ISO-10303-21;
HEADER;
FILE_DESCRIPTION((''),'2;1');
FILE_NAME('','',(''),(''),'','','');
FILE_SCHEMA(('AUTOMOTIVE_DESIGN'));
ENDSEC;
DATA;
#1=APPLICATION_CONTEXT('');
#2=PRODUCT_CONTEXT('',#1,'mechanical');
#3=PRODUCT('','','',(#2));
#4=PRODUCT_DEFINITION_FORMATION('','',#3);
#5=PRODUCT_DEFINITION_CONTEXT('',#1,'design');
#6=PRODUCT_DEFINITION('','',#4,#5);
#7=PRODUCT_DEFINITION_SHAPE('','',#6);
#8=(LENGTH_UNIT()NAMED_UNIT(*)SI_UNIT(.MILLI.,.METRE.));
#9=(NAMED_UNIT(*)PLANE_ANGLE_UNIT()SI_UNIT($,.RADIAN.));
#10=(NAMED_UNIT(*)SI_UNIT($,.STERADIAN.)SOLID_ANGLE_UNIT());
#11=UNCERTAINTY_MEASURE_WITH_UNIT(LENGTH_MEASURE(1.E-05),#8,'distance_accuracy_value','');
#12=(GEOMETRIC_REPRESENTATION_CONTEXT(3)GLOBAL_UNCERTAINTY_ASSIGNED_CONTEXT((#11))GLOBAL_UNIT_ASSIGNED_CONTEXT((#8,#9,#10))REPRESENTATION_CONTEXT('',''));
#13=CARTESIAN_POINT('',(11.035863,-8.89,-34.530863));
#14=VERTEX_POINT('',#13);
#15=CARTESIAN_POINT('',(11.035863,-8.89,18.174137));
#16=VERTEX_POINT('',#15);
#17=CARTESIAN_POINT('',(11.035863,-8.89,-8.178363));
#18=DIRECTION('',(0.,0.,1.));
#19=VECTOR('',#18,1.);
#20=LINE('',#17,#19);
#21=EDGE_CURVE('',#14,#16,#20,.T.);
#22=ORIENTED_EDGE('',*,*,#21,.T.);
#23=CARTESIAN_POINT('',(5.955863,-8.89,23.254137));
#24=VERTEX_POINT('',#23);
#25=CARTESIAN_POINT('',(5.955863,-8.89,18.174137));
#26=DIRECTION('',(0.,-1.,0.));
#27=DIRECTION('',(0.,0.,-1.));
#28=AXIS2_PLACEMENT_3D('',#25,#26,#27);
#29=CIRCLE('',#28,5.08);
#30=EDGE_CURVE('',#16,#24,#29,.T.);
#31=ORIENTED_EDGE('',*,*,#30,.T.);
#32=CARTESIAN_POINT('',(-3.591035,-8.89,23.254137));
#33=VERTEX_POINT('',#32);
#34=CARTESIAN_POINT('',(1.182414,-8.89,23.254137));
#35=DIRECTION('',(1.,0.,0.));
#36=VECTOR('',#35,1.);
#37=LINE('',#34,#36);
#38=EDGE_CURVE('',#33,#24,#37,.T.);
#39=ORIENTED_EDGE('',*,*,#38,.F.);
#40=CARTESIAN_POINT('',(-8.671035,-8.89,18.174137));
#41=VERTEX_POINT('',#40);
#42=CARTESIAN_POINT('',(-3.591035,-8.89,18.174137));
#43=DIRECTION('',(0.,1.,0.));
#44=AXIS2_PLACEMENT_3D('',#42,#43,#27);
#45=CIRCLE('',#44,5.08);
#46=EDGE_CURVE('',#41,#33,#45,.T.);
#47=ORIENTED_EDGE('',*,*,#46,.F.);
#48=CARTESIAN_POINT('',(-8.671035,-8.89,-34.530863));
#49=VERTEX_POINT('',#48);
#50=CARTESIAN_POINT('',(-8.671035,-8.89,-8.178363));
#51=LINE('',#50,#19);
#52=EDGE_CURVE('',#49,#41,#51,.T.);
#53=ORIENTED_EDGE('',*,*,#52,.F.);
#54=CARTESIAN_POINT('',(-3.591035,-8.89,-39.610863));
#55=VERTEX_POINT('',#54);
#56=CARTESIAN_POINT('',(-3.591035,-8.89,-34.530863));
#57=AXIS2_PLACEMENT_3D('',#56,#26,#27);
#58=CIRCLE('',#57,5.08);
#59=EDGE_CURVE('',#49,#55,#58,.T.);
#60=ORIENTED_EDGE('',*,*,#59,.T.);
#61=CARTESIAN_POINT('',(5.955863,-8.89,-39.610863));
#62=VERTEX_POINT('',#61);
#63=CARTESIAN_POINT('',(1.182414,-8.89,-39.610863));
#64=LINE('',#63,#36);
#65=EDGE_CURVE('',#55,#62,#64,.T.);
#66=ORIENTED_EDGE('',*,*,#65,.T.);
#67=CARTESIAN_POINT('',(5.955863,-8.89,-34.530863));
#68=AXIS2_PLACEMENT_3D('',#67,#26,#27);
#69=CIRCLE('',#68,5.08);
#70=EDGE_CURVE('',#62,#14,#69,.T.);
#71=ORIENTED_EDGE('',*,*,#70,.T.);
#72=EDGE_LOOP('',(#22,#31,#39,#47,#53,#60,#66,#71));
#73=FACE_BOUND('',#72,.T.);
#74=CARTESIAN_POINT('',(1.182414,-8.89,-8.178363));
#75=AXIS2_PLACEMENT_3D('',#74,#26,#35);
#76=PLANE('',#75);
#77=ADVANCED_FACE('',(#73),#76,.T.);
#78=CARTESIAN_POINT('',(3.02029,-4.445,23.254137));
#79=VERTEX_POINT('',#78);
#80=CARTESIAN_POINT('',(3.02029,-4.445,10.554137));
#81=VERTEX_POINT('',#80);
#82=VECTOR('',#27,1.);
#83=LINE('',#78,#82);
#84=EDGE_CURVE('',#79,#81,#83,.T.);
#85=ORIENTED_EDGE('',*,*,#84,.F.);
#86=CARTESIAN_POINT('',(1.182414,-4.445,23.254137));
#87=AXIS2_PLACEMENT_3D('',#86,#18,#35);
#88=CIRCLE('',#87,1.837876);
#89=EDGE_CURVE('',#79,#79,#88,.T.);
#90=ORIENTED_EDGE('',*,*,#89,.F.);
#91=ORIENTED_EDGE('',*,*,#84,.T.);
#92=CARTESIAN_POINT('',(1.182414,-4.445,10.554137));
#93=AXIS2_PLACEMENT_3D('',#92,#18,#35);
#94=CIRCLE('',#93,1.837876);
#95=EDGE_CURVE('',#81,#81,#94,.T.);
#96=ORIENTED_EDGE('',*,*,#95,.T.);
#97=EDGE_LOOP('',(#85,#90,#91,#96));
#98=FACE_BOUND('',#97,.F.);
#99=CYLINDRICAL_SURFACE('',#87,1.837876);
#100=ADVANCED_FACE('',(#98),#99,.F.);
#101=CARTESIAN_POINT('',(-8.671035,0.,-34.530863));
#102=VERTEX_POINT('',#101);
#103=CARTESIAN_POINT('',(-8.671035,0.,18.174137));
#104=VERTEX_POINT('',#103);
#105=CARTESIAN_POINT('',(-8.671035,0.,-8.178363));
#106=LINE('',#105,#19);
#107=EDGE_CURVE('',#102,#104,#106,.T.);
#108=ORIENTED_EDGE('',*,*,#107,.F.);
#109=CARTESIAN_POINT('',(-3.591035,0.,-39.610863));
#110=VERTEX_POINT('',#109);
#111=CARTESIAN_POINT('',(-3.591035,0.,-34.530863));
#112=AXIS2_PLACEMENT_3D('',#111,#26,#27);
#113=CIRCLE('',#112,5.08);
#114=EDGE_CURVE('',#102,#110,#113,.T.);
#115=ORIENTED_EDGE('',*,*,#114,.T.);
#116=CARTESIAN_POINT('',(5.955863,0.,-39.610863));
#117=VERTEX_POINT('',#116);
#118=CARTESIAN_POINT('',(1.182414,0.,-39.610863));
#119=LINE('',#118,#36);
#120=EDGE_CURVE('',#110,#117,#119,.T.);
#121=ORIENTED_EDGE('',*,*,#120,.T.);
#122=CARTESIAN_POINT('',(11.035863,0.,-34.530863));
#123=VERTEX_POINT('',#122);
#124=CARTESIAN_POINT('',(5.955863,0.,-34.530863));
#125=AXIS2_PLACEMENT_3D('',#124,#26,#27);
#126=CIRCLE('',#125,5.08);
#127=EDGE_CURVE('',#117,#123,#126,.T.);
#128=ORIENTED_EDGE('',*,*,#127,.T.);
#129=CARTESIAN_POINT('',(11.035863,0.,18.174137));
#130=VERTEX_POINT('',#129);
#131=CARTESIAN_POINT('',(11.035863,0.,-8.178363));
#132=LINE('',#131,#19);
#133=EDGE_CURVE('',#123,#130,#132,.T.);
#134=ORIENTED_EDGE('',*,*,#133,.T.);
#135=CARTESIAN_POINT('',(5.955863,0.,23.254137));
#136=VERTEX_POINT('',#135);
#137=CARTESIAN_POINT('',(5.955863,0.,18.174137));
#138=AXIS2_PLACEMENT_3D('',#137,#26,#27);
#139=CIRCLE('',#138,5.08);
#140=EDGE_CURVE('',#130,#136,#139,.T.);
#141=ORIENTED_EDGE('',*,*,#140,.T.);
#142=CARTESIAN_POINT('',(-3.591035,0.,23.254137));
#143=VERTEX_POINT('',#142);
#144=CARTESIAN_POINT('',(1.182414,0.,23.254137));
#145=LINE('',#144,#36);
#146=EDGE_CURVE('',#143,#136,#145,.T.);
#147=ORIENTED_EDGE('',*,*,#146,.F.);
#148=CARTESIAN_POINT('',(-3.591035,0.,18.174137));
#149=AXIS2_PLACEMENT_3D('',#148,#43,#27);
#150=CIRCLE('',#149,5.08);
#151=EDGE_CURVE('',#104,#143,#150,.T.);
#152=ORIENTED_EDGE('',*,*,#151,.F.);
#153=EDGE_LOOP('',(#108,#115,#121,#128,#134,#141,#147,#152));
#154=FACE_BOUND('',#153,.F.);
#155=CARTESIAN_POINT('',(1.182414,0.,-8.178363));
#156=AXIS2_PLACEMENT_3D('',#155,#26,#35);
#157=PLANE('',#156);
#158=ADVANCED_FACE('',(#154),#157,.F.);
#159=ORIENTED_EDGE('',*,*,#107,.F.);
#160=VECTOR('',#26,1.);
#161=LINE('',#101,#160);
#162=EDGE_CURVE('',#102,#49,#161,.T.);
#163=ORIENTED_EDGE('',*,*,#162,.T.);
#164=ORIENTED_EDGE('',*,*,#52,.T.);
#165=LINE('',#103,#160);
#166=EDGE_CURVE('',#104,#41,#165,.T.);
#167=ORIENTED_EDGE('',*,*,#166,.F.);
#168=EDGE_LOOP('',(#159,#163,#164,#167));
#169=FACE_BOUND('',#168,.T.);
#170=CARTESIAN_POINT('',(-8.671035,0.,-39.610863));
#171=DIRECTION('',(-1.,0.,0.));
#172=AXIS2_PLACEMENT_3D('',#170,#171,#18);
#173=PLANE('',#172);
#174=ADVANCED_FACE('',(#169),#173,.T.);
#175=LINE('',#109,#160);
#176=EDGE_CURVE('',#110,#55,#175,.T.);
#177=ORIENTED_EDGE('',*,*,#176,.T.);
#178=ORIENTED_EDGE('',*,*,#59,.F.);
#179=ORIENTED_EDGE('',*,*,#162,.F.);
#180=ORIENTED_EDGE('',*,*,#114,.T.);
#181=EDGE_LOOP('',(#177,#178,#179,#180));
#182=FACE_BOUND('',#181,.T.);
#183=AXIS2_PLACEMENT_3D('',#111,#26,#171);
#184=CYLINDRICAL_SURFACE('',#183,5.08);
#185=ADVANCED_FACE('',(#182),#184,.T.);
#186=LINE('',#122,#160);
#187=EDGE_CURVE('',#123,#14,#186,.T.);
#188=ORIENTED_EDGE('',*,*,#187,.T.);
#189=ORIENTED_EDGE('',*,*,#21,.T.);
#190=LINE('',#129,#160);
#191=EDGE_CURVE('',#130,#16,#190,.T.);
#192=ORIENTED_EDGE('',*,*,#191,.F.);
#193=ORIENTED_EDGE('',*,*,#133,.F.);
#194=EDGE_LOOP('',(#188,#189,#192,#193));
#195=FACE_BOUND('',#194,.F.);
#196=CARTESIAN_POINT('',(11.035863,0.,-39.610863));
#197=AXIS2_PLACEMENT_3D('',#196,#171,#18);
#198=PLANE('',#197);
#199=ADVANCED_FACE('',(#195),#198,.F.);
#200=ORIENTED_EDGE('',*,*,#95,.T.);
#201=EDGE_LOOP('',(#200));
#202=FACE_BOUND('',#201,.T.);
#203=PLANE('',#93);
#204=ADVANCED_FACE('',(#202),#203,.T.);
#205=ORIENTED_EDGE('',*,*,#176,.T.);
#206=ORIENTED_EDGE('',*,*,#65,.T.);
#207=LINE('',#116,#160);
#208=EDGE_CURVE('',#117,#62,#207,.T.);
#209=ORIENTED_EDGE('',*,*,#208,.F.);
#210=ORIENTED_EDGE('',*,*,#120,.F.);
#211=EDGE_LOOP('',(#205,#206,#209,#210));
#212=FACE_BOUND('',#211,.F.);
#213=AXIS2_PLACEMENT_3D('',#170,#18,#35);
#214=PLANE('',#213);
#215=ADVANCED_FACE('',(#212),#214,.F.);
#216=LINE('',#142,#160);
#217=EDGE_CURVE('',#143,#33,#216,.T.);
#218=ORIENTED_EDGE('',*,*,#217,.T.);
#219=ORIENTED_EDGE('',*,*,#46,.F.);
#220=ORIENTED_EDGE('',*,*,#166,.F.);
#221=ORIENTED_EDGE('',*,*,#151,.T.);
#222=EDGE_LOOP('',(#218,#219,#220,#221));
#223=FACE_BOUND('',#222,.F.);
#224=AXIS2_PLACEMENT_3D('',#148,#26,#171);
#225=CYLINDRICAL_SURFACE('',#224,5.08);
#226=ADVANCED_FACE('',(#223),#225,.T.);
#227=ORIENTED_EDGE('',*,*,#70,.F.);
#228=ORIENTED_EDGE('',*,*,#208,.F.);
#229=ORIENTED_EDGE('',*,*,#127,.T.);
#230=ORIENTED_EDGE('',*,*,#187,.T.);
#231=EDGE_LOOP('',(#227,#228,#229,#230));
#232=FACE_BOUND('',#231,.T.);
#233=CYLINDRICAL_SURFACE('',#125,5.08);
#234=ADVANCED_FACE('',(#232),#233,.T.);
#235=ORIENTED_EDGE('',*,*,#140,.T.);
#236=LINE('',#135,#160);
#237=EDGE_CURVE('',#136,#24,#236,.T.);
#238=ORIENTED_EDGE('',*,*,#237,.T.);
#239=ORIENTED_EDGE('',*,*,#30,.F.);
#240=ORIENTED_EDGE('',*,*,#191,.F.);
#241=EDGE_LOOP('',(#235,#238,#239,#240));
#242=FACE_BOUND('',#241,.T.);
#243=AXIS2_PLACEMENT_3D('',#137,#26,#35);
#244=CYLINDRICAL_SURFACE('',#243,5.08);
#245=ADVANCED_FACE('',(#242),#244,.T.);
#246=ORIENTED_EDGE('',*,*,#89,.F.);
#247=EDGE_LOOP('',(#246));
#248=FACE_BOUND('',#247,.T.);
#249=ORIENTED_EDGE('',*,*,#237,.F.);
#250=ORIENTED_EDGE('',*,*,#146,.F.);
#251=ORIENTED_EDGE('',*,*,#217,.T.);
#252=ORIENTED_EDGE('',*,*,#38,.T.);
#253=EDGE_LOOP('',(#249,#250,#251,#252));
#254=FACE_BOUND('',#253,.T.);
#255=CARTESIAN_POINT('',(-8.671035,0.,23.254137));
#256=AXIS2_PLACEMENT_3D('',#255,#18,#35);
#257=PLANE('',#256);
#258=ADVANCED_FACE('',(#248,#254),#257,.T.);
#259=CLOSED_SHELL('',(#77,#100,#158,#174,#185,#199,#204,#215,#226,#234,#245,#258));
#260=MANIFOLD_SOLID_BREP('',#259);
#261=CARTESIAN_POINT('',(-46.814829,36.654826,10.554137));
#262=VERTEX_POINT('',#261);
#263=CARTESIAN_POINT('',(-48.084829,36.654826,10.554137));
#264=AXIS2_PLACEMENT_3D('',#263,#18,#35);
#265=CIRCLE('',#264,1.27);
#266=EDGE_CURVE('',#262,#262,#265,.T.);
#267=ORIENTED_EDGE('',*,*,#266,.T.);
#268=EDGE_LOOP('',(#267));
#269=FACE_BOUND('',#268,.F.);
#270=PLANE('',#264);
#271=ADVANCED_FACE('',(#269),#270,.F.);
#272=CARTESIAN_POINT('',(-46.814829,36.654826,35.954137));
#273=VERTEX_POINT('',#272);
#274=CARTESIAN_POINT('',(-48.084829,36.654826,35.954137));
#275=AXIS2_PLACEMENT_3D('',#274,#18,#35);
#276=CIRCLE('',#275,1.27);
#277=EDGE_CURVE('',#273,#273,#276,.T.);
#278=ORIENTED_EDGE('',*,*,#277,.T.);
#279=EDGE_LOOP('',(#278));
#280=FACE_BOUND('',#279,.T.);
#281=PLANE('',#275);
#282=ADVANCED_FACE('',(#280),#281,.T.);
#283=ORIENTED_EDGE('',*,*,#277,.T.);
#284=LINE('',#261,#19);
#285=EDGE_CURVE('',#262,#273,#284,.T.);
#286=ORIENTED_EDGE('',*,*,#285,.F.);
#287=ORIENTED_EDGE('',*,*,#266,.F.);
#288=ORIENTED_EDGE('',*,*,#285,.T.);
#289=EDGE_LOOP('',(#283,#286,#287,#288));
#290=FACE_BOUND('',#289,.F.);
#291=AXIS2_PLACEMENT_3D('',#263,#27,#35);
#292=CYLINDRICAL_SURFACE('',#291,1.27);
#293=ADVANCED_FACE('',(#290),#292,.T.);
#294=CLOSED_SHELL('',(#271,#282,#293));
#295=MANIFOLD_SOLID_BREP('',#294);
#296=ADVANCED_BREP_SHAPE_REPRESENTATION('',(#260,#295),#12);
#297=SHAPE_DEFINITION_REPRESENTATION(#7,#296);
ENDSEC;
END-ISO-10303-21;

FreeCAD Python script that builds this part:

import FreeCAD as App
import Part
import Sketcher

V = App.Vector
Q = App.Units.Quantity


def edges_at(feature, points):
    """Names of the edges that pass closest to the given points."""
    edges = feature.Shape.Edges
    near = lambda p: min(range(len(edges)), key=lambda i: edges[i].distToShape(Part.Vertex(*p))[0])
    return sorted({f"Edge{near(p) + 1}" for p in points})


def add_polygon(sketch, points):
    """Adds a closed chain of lines whose ends are joined by coincident constraints."""
    first, n = sketch.GeometryCount, len(points)
    for a, b in zip(points, points[1:] + points[:1]):
        sketch.addGeometry(Part.LineSegment(App.Vector(*a, 0), App.Vector(*b, 0)), False)
    for i in range(n):
        sketch.addConstraint(Sketcher.Constraint("Coincident", first + i, 2, first + (i + 1) % n, 1))

doc = App.newDocument("Part")
body = doc.addObject("PartDesign::Body", "Body")

# Sketch on XZ plane
sketch1 = doc.addObject("Sketcher::SketchObject", "Sketch")
body.addObject(sketch1)
sketch1.AttachmentSupport = (doc.XZ_Plane, [""])
sketch1.MapMode = "FlatFace"
add_polygon(sketch1, [(-9, 23), (-9, -40), (11, -40), (11, 23)])  # lines 0-3
sketch1.addConstraint(Sketcher.Constraint("Vertical", 0))
sketch1.addConstraint(Sketcher.Constraint("Horizontal", 1))
sketch1.addConstraint(Sketcher.Constraint("Vertical", 2))
sketch1.addConstraint(Sketcher.Constraint("Horizontal", 3))
sketch1.addConstraint(Sketcher.Constraint("DistanceY", 0, 2, 0, 1, Q("2.475 in")))
sketch1.addConstraint(Sketcher.Constraint("DistanceX", 1, 1, 1, 2, 19.706898))
sketch1.addConstraint(Sketcher.Constraint("DistanceX", 0, 2, -1, 1, 8.671035))
sketch1.addConstraint(Sketcher.Constraint("DistanceY", 0, 2, -1, 1, 39.610863))
pad1 = doc.addObject("PartDesign::Pad", "Pad")
body.addObject(pad1)
pad1.Profile = sketch1
pad1.Length = Q("0.35 in")
doc.recompute()

fillet = doc.addObject("PartDesign::Fillet", "Fillet")
body.addObject(fillet)
fillet.Base = (pad1, edges_at(pad1, [
    (-8.671, -4.445, -39.611),
    (11.036, -4.445, -39.611),
    (11.036, -4.445, 23.254),
    (-8.671, -4.445, 23.254),
]))
fillet.Radius = Q("0.2 in")

# Sketch on XY plane
sketch2 = doc.addObject("Sketcher::SketchObject", "Sketch001")
body.addObject(sketch2)
sketch2.AttachmentSupport = (doc.XY_Plane, [""])
sketch2.MapMode = "FlatFace"
sketch2.AttachmentOffset = App.Placement(V(0, 0, 23.254137), App.Rotation())
sketch2.addGeometry(Part.Circle(V(1.2, -4.4, 0), V(0, 0, 1), 1.8), False)
sketch2.addConstraint(Sketcher.Constraint("DistanceY", 0, 3, -1, 1, Q("0.175 in")))
sketch2.addConstraint(Sketcher.Constraint("Diameter", 0, 3.675752))
sketch2.addConstraint(Sketcher.Constraint("DistanceX", -1, 1, 0, 3, 1.182414))
pocket1 = doc.addObject("PartDesign::Pocket", "Pocket")
body.addObject(pocket1)
pocket1.Profile = sketch2
pocket1.Length = Q("0.5 in")
body2 = doc.addObject("PartDesign::Body", "Body001")

# Sketch on XY plane
sketch3 = doc.addObject("Sketcher::SketchObject", "Sketch002")
body2.addObject(sketch3)
sketch3.AttachmentSupport = (doc.getObject("XY_Plane001"), [""])
sketch3.MapMode = "FlatFace"
sketch3.AttachmentOffset = App.Placement(V(0, 0, 10.554137), App.Rotation())
sketch3.addGeometry(Part.Circle(V(-48.1, 36.7, 0), V(0, 0, 1), 1.3), False)
sketch3.addConstraint(Sketcher.Constraint("Diameter", 0, Q("0.1 in")))
sketch3.addConstraint(Sketcher.Constraint("DistanceX", 0, 3, -1, 1, 48.084829))
sketch3.addConstraint(Sketcher.Constraint("DistanceY", -1, 1, 0, 3, 36.654826))
pad2 = doc.addObject("PartDesign::Pad", "Pad001")
body2.addObject(pad2)
pad2.Profile = sketch3
pad2.Length = Q("1 in")

doc.recompute()
